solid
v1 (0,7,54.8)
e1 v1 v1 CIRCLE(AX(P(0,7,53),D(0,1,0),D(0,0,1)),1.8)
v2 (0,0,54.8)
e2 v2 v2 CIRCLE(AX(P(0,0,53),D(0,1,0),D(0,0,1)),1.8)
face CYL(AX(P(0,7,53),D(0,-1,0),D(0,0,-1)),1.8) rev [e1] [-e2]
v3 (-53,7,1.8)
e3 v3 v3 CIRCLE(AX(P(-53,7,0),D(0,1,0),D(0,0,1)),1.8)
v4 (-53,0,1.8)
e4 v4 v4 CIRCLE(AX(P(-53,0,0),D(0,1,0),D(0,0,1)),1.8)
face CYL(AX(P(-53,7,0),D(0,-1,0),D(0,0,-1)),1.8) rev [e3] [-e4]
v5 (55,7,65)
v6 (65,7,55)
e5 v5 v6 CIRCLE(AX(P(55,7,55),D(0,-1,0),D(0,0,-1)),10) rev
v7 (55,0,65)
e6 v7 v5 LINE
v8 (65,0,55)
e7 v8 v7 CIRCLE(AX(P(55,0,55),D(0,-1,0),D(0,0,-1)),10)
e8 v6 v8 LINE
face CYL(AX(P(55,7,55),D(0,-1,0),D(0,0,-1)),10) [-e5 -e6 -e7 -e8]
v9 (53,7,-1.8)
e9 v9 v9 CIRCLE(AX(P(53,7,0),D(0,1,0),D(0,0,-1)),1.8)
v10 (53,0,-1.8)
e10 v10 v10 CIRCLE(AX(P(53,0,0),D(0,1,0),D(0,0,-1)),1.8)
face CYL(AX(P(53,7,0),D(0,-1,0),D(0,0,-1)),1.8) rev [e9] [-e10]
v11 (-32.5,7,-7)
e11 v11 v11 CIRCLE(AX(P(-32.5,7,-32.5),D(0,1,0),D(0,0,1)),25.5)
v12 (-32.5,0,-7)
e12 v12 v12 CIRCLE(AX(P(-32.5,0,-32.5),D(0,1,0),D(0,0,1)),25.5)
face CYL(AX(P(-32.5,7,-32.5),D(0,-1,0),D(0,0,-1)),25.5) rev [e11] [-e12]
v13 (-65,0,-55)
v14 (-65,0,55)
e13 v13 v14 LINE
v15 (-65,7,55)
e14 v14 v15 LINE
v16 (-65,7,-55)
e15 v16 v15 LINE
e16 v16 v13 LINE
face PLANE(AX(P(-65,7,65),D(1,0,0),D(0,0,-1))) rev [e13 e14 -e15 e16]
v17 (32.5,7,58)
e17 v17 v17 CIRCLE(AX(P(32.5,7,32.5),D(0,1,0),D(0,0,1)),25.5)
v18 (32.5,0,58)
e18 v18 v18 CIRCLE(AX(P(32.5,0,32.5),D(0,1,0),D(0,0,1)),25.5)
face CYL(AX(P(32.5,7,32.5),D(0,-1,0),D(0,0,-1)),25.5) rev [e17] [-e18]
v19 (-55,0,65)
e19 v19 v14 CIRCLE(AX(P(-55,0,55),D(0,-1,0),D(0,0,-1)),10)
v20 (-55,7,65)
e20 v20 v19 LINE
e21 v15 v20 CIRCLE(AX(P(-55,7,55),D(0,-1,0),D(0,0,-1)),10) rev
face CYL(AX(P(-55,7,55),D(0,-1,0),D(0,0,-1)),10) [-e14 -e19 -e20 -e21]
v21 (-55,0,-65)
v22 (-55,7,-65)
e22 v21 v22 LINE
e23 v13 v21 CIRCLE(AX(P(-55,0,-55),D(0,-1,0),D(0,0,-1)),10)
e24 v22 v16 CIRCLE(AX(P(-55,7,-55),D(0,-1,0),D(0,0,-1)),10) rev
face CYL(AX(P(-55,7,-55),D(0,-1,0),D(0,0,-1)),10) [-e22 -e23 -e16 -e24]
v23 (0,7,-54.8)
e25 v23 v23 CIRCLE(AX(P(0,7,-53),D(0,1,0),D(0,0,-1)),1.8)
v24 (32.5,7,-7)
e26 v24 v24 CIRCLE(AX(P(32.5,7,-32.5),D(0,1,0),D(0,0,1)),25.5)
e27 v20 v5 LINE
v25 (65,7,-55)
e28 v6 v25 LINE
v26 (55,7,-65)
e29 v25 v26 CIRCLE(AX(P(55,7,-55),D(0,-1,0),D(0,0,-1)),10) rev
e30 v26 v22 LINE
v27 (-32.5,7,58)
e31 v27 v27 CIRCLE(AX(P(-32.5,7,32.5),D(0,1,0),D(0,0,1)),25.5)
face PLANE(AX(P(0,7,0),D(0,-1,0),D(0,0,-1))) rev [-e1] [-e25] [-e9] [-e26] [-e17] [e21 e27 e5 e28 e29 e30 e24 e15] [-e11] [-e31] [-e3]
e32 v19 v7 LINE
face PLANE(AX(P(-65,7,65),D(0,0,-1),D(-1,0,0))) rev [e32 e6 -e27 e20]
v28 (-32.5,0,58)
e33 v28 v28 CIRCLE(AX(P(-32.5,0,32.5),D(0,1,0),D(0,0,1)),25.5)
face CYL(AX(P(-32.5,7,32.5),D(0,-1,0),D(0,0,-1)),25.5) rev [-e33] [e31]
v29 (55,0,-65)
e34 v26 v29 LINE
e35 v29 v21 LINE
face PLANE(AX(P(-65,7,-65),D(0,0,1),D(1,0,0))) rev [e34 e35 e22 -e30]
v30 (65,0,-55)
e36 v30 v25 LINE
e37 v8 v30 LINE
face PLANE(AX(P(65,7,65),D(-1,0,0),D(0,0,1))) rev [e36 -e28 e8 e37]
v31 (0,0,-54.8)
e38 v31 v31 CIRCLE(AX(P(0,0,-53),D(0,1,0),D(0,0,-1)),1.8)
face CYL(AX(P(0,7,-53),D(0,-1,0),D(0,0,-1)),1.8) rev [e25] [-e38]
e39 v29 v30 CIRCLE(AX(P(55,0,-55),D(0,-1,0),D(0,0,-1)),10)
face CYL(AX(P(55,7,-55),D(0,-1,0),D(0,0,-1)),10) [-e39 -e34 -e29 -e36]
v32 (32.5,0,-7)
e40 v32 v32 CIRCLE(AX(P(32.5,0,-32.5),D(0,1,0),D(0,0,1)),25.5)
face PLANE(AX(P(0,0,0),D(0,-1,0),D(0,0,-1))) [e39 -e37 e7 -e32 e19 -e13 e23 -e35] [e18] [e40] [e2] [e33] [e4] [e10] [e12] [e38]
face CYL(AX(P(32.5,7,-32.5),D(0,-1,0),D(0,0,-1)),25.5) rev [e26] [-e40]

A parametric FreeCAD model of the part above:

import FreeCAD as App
import Part
import Sketcher
Q = App.Units.Quantity


def edges_at(feature, points):
    """Names of the edges that pass closest to the given points."""
    edges = feature.Shape.Edges
    near = lambda p: min(range(len(edges)), key=lambda i: edges[i].distToShape(Part.Vertex(*p))[0])
    return sorted({f"Edge{near(p) + 1}" for p in points})


def add_polygon(sketch, points):
    """Adds a closed chain of lines whose ends are joined by coincident constraints."""
    first, n = sketch.GeometryCount, len(points)
    for a, b in zip(points, points[1:] + points[:1]):
        sketch.addGeometry(Part.LineSegment(App.Vector(*a, 0), App.Vector(*b, 0)), False)
    for i in range(n):
        sketch.addConstraint(Sketcher.Constraint("Coincident", first + i, 2, first + (i + 1) % n, 1))

doc = App.newDocument("Part")
params = doc.addObject("Spreadsheet::Sheet", "Params")
for row, (alias, value) in enumerate([
    ("sketch1_diameter", "51 mm"),
    ("sketch1_diameter2", "3.6 mm"),
    ("sketch1_width", "130 mm"),
    ("pad1_length", "7 mm"),
    ("fillet_radius", "10 mm"),
], start=1):
    params.set(f"A{row}", alias)
    params.set(f"B{row}", "=" + value)
    params.setAlias(f"B{row}", alias)

body = doc.addObject("PartDesign::Body", "Body")

sketch1 = body.newObject("Sketcher::SketchObject", "Sketch")
sketch1.AttachmentSupport = (doc.getObject("XZ_Plane"), [""])
sketch1.MapMode = "FlatFace"
add_polygon(sketch1, [(-65, -65), (-65, 65), (65, 65), (65, -65)])
sketch1.addGeometry(Part.Circle(App.Vector(-32.5, 32.5, 0), App.Vector(0, 0, 1), 25.5), False)
sketch1.addGeometry(Part.Circle(App.Vector(0, 53, 0), App.Vector(0, 0, 1), 1.8), False)
sketch1.addGeometry(Part.Circle(App.Vector(32.5, 32.5, 0), App.Vector(0, 0, 1), 25.5), False)
sketch1.addGeometry(Part.Circle(App.Vector(-53, 0, 0), App.Vector(0, 0, 1), 1.8), False)
sketch1.addGeometry(Part.Circle(App.Vector(-32.5, -32.5, 0), App.Vector(0, 0, 1), 25.5), False)
sketch1.addGeometry(Part.Circle(App.Vector(53, 0, 0), App.Vector(0, 0, 1), 1.8), False)
sketch1.addGeometry(Part.Circle(App.Vector(0, -53, 0), App.Vector(0, 0, 1), 1.8), False)
sketch1.addGeometry(Part.Circle(App.Vector(32.5, -32.5, 0), App.Vector(0, 0, 1), 25.5), False)
sketch1.addConstraint([
    Sketcher.Constraint("Vertical", 0),
    Sketcher.Constraint("Horizontal", 1),
    Sketcher.Constraint("Vertical", 2),
    Sketcher.Constraint("Horizontal", 3),
    Sketcher.Constraint("Equal", 4, 6),
    Sketcher.Constraint("Equal", 5, 7),
    Sketcher.Constraint("Equal", 6, 8),
    Sketcher.Constraint("Equal", 7, 9),
    Sketcher.Constraint("Equal", 9, 10),
    Sketcher.Constraint("Equal", 8, 11),
    Sketcher.Constraint("Symmetric", 6, 3, 8, 3, -1, 1),
    Sketcher.Constraint("Symmetric", 7, 3, 9, 3, -1, 1),
    Sketcher.Constraint("Symmetric", 5, 3, 10, 3, -1, 1),
    Sketcher.Constraint("Symmetric", 4, 3, 11, 3, -1, 1),
    Sketcher.Constraint("Symmetric", 0, 2, 2, 2, -1, 1),
    Sketcher.Constraint("Symmetric", 4, 3, 6, 3, -2),
    Sketcher.Constraint("PointOnObject", 5, 3, -2),
    Sketcher.Constraint("PointOnObject", 7, 3, -1),
    Sketcher.Constraint("Equal", 3, 0),
    Sketcher.Constraint("Diameter", 4, Q("51 mm")),
    Sketcher.Constraint("Diameter", 5, Q("3.6 mm")),
    Sketcher.Constraint("DistanceX", 1, 1, 1, 2, Q("130 mm")),
    Sketcher.Constraint("DistanceY", -1, 1, 5, 3, Q("53 mm")),
    Sketcher.Constraint("DistanceX", 7, 3, -1, 1, Q("53 mm")),
    Sketcher.Constraint("DistanceX", 4, 3, 6, 3, Q("65 mm")),
    Sketcher.Constraint("DistanceY", 8, 3, 4, 3, Q("65 mm")),
])
sketch1.setExpression("Constraints[23]", "Params.sketch1_diameter")
sketch1.setExpression("Constraints[24]", "Params.sketch1_diameter2")
sketch1.setExpression("Constraints[25]", "Params.sketch1_width")
pad1 = body.newObject("PartDesign::Pad", "Pad")
pad1.Profile = sketch1
pad1.setExpression("Length", "Params.pad1_length")
pad1.Reversed = True
doc.recompute()

fillet = body.newObject("PartDesign::Fillet", "Fillet")
fillet.Base = (pad1, edges_at(pad1, [
    (-65, 3.5, -65),
    (65, 3.5, -65),
    (65, 3.5, 65),
    (-65, 3.5, 65),
]))
fillet.setExpression("Radius", "Params.fillet_radius")

doc.recompute()
